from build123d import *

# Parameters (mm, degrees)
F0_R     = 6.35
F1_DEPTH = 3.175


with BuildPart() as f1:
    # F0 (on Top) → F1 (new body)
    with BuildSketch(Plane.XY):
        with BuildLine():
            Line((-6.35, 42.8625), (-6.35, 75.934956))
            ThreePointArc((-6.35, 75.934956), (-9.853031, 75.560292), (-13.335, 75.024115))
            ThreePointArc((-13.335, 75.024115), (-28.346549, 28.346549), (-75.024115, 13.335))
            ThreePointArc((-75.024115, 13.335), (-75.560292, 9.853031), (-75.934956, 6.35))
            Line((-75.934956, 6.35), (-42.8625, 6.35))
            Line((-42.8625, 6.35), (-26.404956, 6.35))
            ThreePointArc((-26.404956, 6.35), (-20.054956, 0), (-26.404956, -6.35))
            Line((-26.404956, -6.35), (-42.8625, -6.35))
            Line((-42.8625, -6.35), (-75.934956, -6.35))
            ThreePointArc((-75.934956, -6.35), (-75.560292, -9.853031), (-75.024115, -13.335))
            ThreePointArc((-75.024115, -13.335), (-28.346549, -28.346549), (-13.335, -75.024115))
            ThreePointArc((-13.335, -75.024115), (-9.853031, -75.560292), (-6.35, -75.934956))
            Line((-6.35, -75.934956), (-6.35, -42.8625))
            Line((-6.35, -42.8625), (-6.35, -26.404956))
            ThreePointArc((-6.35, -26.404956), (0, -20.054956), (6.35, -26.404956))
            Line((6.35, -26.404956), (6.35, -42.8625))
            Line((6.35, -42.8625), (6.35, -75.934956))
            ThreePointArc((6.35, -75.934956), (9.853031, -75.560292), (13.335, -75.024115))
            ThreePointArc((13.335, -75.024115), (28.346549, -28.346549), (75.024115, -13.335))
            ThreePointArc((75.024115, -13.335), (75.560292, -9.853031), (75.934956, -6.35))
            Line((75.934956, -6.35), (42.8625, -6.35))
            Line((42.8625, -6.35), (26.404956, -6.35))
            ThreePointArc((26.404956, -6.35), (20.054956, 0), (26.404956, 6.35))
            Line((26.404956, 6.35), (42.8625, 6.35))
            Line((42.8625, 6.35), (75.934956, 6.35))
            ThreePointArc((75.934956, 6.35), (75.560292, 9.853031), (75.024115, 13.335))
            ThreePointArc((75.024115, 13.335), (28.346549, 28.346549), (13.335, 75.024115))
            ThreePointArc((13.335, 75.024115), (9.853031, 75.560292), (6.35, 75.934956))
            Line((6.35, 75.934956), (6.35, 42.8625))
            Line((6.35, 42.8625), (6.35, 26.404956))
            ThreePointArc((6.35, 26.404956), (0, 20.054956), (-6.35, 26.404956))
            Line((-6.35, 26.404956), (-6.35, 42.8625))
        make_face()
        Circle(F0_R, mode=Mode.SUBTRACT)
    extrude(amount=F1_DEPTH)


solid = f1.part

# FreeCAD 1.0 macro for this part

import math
import FreeCAD as App
import Part
import Sketcher
Q = App.Units.Quantity

doc = App.newDocument("Part")
body = doc.addObject("PartDesign::Body", "Body")

# Sketch on XY plane
sketch1 = doc.addObject("Sketcher::SketchObject", "Sketch")
body.addObject(sketch1)
sketch1.AttachmentSupport = (doc.XY_Plane, [""])
sketch1.MapMode = "FlatFace"
sketch1.addGeometry([
    Part.ArcOfCircle(Part.Circle(App.Vector(0.00008, -0.000625, 0), App.Vector(0, 0, 1), 76.20063), math.radians(94.780213), math.radians(100.078635)),  # 0
    Part.ArcOfCircle(Part.Circle(App.Vector(-66.307461, 66.307461, 0), App.Vector(0, 0, 1), 53.684837), math.radians(-99.344321), math.radians(9.344321)),  # 1
    Part.ArcOfCircle(Part.Circle(App.Vector(0.000625, -0.00008, 0), App.Vector(0, 0, 1), 76.20063), math.radians(169.921365), math.radians(175.219787)),  # 2
    Part.LineSegment(App.Vector(-75.934956, 6.35, 0), App.Vector(-26.404956, 6.35, 0)),  # 3
    Part.ArcOfCircle(Part.Circle(App.Vector(-26.404956, 0, 0), App.Vector(0, 0, 1), 6.35), math.radians(-90), math.radians(90)),  # 4
    Part.LineSegment(App.Vector(-26.404956, -6.35, 0), App.Vector(-75.934956, -6.35, 0)),  # 5
    Part.ArcOfCircle(Part.Circle(App.Vector(0.000625, 0.00008, 0), App.Vector(0, 0, 1), 76.20063), math.radians(-175.219787), math.radians(-169.921365)),  # 6
    Part.ArcOfCircle(Part.Circle(App.Vector(-66.307461, -66.307461, 0), App.Vector(0, 0, 1), 53.684837), math.radians(-9.344321), math.radians(99.344321)),  # 7
    Part.ArcOfCircle(Part.Circle(App.Vector(0.00008, 0.000625, 0), App.Vector(0, 0, 1), 76.20063), math.radians(-100.078635), math.radians(-94.780213)),  # 8
    Part.LineSegment(App.Vector(-6.35, -75.934956, 0), App.Vector(-6.35, -26.404956, 0)),  # 9
    Part.ArcOfCircle(Part.Circle(App.Vector(0, -26.404956, 0), App.Vector(0, 0, 1), 6.35), math.radians(0), math.radians(180)),  # 10
    Part.LineSegment(App.Vector(6.35, -26.404956, 0), App.Vector(6.35, -75.934956, 0)),  # 11
    Part.ArcOfCircle(Part.Circle(App.Vector(-0.00008, 0.000625, 0), App.Vector(0, 0, 1), 76.20063), math.radians(-85.219787), math.radians(-79.921365)),  # 12
    Part.ArcOfCircle(Part.Circle(App.Vector(66.307461, -66.307461, 0), App.Vector(0, 0, 1), 53.684837), math.radians(80.655679), math.radians(189.344321)),  # 13
    Part.ArcOfCircle(Part.Circle(App.Vector(-0.000625, 0.00008, 0), App.Vector(0, 0, 1), 76.20063), math.radians(-10.078635), math.radians(-4.780213)),  # 14
    Part.LineSegment(App.Vector(75.934956, -6.35, 0), App.Vector(26.404956, -6.35, 0)),  # 15
    Part.ArcOfCircle(Part.Circle(App.Vector(26.404956, 0, 0), App.Vector(0, 0, 1), 6.35), math.radians(90), math.radians(270)),  # 16
    Part.LineSegment(App.Vector(26.404956, 6.35, 0), App.Vector(75.934956, 6.35, 0)),  # 17
    Part.ArcOfCircle(Part.Circle(App.Vector(-0.000625, -0.00008, 0), App.Vector(0, 0, 1), 76.20063), math.radians(4.780213), math.radians(10.078635)),  # 18
    Part.ArcOfCircle(Part.Circle(App.Vector(66.307461, 66.307461, 0), App.Vector(0, 0, 1), 53.684837), math.radians(170.655679), math.radians(279.344321)),  # 19
    Part.ArcOfCircle(Part.Circle(App.Vector(-0.00008, -0.000625, 0), App.Vector(0, 0, 1), 76.20063), math.radians(79.921365), math.radians(85.219787)),  # 20
    Part.LineSegment(App.Vector(6.35, 75.934956, 0), App.Vector(6.35, 26.404956, 0)),  # 21
    Part.ArcOfCircle(Part.Circle(App.Vector(0, 26.404956, 0), App.Vector(0, 0, 1), 6.35), math.radians(180), math.radians(360)),  # 22
    Part.LineSegment(App.Vector(-6.35, 26.404956, 0), App.Vector(-6.35, 75.934956, 0)),  # 23
    Part.Circle(App.Vector(0, 0, 0), App.Vector(0, 0, 1), 6.35),  # 24
], False)
sketch1.addConstraint([
    Sketcher.Constraint("Coincident", 0, 2, 1, 2),
    Sketcher.Constraint("Coincident", 1, 1, 2, 1),
    Sketcher.Constraint("Coincident", 2, 2, 3, 1),
    Sketcher.Constraint("Tangent", 3, 2, 4, 2),
    Sketcher.Constraint("Tangent", 4, 1, 5, 1),
    Sketcher.Constraint("Coincident", 5, 2, 6, 1),
    Sketcher.Constraint("Coincident", 6, 2, 7, 2),
    Sketcher.Constraint("Coincident", 7, 1, 8, 1),
    Sketcher.Constraint("Coincident", 8, 2, 9, 1),
    Sketcher.Constraint("Tangent", 9, 2, 10, 2),
    Sketcher.Constraint("Tangent", 10, 1, 11, 1),
    Sketcher.Constraint("Coincident", 11, 2, 12, 1),
    Sketcher.Constraint("Coincident", 12, 2, 13, 2),
    Sketcher.Constraint("Coincident", 13, 1, 14, 1),
    Sketcher.Constraint("Coincident", 14, 2, 15, 1),
    Sketcher.Constraint("Tangent", 15, 2, 16, 2),
    Sketcher.Constraint("Tangent", 16, 1, 17, 1),
    Sketcher.Constraint("Coincident", 17, 2, 18, 1),
    Sketcher.Constraint("Coincident", 18, 2, 19, 2),
    Sketcher.Constraint("Coincident", 19, 1, 20, 1),
    Sketcher.Constraint("Coincident", 20, 2, 21, 1),
    Sketcher.Constraint("Tangent", 21, 2, 22, 2),
    Sketcher.Constraint("Tangent", 22, 1, 23, 1),
    Sketcher.Constraint("Coincident", 23, 2, 0, 1),
    Sketcher.Constraint("Horizontal", 3),
    Sketcher.Constraint("Horizontal", 5),
    Sketcher.Constraint("Vertical", 9),
    Sketcher.Constraint("Vertical", 11),
    Sketcher.Constraint("Horizontal", 15),
    Sketcher.Constraint("Horizontal", 17),
    Sketcher.Constraint("Vertical", 21),
    Sketcher.Constraint("Vertical", 23),
    Sketcher.Constraint("Coincident", 24, 3, -1, 1),
    Sketcher.Constraint("Equal", 0, 2),
    Sketcher.Constraint("Equal", 2, 6),
    Sketcher.Constraint("Equal", 1, 7),
    Sketcher.Constraint("Equal", 6, 8),
    Sketcher.Constraint("Equal", 4, 10),
    Sketcher.Constraint("Equal", 8, 12),
    Sketcher.Constraint("Equal", 7, 13),
    Sketcher.Constraint("Equal", 12, 14),
    Sketcher.Constraint("Equal", 10, 16),
    Sketcher.Constraint("Equal", 14, 18),
    Sketcher.Constraint("Equal", 13, 19),
    Sketcher.Constraint("Equal", 18, 20),
    Sketcher.Constraint("Equal", 16, 22),
    Sketcher.Constraint("Equal", 22, 24),
    Sketcher.Constraint("Symmetric", 0, 3, 12, 3, -1, 1),
    Sketcher.Constraint("Symmetric", 1, 3, 13, 3, -1, 1),
    Sketcher.Constraint("Symmetric", 2, 3, 14, 3, -1, 1),
    Sketcher.Constraint("Symmetric", 4, 3, 16, 3, -1, 1),
    Sketcher.Constraint("Symmetric", 6, 3, 18, 3, -1, 1),
    Sketcher.Constraint("Symmetric", 7, 3, 19, 3, -1, 1),
    Sketcher.Constraint("Symmetric", 8, 3, 20, 3, -1, 1),
    Sketcher.Constraint("Symmetric", 10, 3, 22, 3, -1, 1),
    Sketcher.Constraint("Symmetric", 8, 3, 12, 3, -2),
    Sketcher.Constraint("Symmetric", 7, 3, 13, 3, -2),
    Sketcher.Constraint("Symmetric", 6, 3, 14, 3, -2),
    Sketcher.Constraint("PointOnObject", 4, 3, -1),
    Sketcher.Constraint("PointOnObject", 10, 3, -2),
    Sketcher.Constraint("Equal", 17, 9),
    Sketcher.Constraint("Diameter", 24, Q("0.5 in")),
    Sketcher.Constraint("DistanceX", 3, 1, 3, 2, Q("1.95 in")),
    Sketcher.Constraint("DistanceY", 6, 2, 1, 1, Q("1.05 in")),
    Sketcher.Constraint("DistanceX", 7, 1, 12, 2, Q("1.05 in")),
    Sketcher.Constraint("Radius", 0, 76.20063),
    Sketcher.Constraint("Radius", 1, 53.684837),
    Sketcher.Constraint("DistanceX", 1, 3, -1, 1, 66.307461),
    Sketcher.Constraint("DistanceY", -1, 1, 1, 3, 66.307461),
    Sketcher.Constraint("DistanceX", 1, 3, 0, 3, 66.307542),
    Sketcher.Constraint("DistanceY", 2, 3, 1, 3, 66.307542),
])
pad1 = doc.addObject("PartDesign::Pad", "Pad")
body.addObject(pad1)
pad1.Profile = sketch1
pad1.Length = Q("0.125 in")

doc.recompute()
